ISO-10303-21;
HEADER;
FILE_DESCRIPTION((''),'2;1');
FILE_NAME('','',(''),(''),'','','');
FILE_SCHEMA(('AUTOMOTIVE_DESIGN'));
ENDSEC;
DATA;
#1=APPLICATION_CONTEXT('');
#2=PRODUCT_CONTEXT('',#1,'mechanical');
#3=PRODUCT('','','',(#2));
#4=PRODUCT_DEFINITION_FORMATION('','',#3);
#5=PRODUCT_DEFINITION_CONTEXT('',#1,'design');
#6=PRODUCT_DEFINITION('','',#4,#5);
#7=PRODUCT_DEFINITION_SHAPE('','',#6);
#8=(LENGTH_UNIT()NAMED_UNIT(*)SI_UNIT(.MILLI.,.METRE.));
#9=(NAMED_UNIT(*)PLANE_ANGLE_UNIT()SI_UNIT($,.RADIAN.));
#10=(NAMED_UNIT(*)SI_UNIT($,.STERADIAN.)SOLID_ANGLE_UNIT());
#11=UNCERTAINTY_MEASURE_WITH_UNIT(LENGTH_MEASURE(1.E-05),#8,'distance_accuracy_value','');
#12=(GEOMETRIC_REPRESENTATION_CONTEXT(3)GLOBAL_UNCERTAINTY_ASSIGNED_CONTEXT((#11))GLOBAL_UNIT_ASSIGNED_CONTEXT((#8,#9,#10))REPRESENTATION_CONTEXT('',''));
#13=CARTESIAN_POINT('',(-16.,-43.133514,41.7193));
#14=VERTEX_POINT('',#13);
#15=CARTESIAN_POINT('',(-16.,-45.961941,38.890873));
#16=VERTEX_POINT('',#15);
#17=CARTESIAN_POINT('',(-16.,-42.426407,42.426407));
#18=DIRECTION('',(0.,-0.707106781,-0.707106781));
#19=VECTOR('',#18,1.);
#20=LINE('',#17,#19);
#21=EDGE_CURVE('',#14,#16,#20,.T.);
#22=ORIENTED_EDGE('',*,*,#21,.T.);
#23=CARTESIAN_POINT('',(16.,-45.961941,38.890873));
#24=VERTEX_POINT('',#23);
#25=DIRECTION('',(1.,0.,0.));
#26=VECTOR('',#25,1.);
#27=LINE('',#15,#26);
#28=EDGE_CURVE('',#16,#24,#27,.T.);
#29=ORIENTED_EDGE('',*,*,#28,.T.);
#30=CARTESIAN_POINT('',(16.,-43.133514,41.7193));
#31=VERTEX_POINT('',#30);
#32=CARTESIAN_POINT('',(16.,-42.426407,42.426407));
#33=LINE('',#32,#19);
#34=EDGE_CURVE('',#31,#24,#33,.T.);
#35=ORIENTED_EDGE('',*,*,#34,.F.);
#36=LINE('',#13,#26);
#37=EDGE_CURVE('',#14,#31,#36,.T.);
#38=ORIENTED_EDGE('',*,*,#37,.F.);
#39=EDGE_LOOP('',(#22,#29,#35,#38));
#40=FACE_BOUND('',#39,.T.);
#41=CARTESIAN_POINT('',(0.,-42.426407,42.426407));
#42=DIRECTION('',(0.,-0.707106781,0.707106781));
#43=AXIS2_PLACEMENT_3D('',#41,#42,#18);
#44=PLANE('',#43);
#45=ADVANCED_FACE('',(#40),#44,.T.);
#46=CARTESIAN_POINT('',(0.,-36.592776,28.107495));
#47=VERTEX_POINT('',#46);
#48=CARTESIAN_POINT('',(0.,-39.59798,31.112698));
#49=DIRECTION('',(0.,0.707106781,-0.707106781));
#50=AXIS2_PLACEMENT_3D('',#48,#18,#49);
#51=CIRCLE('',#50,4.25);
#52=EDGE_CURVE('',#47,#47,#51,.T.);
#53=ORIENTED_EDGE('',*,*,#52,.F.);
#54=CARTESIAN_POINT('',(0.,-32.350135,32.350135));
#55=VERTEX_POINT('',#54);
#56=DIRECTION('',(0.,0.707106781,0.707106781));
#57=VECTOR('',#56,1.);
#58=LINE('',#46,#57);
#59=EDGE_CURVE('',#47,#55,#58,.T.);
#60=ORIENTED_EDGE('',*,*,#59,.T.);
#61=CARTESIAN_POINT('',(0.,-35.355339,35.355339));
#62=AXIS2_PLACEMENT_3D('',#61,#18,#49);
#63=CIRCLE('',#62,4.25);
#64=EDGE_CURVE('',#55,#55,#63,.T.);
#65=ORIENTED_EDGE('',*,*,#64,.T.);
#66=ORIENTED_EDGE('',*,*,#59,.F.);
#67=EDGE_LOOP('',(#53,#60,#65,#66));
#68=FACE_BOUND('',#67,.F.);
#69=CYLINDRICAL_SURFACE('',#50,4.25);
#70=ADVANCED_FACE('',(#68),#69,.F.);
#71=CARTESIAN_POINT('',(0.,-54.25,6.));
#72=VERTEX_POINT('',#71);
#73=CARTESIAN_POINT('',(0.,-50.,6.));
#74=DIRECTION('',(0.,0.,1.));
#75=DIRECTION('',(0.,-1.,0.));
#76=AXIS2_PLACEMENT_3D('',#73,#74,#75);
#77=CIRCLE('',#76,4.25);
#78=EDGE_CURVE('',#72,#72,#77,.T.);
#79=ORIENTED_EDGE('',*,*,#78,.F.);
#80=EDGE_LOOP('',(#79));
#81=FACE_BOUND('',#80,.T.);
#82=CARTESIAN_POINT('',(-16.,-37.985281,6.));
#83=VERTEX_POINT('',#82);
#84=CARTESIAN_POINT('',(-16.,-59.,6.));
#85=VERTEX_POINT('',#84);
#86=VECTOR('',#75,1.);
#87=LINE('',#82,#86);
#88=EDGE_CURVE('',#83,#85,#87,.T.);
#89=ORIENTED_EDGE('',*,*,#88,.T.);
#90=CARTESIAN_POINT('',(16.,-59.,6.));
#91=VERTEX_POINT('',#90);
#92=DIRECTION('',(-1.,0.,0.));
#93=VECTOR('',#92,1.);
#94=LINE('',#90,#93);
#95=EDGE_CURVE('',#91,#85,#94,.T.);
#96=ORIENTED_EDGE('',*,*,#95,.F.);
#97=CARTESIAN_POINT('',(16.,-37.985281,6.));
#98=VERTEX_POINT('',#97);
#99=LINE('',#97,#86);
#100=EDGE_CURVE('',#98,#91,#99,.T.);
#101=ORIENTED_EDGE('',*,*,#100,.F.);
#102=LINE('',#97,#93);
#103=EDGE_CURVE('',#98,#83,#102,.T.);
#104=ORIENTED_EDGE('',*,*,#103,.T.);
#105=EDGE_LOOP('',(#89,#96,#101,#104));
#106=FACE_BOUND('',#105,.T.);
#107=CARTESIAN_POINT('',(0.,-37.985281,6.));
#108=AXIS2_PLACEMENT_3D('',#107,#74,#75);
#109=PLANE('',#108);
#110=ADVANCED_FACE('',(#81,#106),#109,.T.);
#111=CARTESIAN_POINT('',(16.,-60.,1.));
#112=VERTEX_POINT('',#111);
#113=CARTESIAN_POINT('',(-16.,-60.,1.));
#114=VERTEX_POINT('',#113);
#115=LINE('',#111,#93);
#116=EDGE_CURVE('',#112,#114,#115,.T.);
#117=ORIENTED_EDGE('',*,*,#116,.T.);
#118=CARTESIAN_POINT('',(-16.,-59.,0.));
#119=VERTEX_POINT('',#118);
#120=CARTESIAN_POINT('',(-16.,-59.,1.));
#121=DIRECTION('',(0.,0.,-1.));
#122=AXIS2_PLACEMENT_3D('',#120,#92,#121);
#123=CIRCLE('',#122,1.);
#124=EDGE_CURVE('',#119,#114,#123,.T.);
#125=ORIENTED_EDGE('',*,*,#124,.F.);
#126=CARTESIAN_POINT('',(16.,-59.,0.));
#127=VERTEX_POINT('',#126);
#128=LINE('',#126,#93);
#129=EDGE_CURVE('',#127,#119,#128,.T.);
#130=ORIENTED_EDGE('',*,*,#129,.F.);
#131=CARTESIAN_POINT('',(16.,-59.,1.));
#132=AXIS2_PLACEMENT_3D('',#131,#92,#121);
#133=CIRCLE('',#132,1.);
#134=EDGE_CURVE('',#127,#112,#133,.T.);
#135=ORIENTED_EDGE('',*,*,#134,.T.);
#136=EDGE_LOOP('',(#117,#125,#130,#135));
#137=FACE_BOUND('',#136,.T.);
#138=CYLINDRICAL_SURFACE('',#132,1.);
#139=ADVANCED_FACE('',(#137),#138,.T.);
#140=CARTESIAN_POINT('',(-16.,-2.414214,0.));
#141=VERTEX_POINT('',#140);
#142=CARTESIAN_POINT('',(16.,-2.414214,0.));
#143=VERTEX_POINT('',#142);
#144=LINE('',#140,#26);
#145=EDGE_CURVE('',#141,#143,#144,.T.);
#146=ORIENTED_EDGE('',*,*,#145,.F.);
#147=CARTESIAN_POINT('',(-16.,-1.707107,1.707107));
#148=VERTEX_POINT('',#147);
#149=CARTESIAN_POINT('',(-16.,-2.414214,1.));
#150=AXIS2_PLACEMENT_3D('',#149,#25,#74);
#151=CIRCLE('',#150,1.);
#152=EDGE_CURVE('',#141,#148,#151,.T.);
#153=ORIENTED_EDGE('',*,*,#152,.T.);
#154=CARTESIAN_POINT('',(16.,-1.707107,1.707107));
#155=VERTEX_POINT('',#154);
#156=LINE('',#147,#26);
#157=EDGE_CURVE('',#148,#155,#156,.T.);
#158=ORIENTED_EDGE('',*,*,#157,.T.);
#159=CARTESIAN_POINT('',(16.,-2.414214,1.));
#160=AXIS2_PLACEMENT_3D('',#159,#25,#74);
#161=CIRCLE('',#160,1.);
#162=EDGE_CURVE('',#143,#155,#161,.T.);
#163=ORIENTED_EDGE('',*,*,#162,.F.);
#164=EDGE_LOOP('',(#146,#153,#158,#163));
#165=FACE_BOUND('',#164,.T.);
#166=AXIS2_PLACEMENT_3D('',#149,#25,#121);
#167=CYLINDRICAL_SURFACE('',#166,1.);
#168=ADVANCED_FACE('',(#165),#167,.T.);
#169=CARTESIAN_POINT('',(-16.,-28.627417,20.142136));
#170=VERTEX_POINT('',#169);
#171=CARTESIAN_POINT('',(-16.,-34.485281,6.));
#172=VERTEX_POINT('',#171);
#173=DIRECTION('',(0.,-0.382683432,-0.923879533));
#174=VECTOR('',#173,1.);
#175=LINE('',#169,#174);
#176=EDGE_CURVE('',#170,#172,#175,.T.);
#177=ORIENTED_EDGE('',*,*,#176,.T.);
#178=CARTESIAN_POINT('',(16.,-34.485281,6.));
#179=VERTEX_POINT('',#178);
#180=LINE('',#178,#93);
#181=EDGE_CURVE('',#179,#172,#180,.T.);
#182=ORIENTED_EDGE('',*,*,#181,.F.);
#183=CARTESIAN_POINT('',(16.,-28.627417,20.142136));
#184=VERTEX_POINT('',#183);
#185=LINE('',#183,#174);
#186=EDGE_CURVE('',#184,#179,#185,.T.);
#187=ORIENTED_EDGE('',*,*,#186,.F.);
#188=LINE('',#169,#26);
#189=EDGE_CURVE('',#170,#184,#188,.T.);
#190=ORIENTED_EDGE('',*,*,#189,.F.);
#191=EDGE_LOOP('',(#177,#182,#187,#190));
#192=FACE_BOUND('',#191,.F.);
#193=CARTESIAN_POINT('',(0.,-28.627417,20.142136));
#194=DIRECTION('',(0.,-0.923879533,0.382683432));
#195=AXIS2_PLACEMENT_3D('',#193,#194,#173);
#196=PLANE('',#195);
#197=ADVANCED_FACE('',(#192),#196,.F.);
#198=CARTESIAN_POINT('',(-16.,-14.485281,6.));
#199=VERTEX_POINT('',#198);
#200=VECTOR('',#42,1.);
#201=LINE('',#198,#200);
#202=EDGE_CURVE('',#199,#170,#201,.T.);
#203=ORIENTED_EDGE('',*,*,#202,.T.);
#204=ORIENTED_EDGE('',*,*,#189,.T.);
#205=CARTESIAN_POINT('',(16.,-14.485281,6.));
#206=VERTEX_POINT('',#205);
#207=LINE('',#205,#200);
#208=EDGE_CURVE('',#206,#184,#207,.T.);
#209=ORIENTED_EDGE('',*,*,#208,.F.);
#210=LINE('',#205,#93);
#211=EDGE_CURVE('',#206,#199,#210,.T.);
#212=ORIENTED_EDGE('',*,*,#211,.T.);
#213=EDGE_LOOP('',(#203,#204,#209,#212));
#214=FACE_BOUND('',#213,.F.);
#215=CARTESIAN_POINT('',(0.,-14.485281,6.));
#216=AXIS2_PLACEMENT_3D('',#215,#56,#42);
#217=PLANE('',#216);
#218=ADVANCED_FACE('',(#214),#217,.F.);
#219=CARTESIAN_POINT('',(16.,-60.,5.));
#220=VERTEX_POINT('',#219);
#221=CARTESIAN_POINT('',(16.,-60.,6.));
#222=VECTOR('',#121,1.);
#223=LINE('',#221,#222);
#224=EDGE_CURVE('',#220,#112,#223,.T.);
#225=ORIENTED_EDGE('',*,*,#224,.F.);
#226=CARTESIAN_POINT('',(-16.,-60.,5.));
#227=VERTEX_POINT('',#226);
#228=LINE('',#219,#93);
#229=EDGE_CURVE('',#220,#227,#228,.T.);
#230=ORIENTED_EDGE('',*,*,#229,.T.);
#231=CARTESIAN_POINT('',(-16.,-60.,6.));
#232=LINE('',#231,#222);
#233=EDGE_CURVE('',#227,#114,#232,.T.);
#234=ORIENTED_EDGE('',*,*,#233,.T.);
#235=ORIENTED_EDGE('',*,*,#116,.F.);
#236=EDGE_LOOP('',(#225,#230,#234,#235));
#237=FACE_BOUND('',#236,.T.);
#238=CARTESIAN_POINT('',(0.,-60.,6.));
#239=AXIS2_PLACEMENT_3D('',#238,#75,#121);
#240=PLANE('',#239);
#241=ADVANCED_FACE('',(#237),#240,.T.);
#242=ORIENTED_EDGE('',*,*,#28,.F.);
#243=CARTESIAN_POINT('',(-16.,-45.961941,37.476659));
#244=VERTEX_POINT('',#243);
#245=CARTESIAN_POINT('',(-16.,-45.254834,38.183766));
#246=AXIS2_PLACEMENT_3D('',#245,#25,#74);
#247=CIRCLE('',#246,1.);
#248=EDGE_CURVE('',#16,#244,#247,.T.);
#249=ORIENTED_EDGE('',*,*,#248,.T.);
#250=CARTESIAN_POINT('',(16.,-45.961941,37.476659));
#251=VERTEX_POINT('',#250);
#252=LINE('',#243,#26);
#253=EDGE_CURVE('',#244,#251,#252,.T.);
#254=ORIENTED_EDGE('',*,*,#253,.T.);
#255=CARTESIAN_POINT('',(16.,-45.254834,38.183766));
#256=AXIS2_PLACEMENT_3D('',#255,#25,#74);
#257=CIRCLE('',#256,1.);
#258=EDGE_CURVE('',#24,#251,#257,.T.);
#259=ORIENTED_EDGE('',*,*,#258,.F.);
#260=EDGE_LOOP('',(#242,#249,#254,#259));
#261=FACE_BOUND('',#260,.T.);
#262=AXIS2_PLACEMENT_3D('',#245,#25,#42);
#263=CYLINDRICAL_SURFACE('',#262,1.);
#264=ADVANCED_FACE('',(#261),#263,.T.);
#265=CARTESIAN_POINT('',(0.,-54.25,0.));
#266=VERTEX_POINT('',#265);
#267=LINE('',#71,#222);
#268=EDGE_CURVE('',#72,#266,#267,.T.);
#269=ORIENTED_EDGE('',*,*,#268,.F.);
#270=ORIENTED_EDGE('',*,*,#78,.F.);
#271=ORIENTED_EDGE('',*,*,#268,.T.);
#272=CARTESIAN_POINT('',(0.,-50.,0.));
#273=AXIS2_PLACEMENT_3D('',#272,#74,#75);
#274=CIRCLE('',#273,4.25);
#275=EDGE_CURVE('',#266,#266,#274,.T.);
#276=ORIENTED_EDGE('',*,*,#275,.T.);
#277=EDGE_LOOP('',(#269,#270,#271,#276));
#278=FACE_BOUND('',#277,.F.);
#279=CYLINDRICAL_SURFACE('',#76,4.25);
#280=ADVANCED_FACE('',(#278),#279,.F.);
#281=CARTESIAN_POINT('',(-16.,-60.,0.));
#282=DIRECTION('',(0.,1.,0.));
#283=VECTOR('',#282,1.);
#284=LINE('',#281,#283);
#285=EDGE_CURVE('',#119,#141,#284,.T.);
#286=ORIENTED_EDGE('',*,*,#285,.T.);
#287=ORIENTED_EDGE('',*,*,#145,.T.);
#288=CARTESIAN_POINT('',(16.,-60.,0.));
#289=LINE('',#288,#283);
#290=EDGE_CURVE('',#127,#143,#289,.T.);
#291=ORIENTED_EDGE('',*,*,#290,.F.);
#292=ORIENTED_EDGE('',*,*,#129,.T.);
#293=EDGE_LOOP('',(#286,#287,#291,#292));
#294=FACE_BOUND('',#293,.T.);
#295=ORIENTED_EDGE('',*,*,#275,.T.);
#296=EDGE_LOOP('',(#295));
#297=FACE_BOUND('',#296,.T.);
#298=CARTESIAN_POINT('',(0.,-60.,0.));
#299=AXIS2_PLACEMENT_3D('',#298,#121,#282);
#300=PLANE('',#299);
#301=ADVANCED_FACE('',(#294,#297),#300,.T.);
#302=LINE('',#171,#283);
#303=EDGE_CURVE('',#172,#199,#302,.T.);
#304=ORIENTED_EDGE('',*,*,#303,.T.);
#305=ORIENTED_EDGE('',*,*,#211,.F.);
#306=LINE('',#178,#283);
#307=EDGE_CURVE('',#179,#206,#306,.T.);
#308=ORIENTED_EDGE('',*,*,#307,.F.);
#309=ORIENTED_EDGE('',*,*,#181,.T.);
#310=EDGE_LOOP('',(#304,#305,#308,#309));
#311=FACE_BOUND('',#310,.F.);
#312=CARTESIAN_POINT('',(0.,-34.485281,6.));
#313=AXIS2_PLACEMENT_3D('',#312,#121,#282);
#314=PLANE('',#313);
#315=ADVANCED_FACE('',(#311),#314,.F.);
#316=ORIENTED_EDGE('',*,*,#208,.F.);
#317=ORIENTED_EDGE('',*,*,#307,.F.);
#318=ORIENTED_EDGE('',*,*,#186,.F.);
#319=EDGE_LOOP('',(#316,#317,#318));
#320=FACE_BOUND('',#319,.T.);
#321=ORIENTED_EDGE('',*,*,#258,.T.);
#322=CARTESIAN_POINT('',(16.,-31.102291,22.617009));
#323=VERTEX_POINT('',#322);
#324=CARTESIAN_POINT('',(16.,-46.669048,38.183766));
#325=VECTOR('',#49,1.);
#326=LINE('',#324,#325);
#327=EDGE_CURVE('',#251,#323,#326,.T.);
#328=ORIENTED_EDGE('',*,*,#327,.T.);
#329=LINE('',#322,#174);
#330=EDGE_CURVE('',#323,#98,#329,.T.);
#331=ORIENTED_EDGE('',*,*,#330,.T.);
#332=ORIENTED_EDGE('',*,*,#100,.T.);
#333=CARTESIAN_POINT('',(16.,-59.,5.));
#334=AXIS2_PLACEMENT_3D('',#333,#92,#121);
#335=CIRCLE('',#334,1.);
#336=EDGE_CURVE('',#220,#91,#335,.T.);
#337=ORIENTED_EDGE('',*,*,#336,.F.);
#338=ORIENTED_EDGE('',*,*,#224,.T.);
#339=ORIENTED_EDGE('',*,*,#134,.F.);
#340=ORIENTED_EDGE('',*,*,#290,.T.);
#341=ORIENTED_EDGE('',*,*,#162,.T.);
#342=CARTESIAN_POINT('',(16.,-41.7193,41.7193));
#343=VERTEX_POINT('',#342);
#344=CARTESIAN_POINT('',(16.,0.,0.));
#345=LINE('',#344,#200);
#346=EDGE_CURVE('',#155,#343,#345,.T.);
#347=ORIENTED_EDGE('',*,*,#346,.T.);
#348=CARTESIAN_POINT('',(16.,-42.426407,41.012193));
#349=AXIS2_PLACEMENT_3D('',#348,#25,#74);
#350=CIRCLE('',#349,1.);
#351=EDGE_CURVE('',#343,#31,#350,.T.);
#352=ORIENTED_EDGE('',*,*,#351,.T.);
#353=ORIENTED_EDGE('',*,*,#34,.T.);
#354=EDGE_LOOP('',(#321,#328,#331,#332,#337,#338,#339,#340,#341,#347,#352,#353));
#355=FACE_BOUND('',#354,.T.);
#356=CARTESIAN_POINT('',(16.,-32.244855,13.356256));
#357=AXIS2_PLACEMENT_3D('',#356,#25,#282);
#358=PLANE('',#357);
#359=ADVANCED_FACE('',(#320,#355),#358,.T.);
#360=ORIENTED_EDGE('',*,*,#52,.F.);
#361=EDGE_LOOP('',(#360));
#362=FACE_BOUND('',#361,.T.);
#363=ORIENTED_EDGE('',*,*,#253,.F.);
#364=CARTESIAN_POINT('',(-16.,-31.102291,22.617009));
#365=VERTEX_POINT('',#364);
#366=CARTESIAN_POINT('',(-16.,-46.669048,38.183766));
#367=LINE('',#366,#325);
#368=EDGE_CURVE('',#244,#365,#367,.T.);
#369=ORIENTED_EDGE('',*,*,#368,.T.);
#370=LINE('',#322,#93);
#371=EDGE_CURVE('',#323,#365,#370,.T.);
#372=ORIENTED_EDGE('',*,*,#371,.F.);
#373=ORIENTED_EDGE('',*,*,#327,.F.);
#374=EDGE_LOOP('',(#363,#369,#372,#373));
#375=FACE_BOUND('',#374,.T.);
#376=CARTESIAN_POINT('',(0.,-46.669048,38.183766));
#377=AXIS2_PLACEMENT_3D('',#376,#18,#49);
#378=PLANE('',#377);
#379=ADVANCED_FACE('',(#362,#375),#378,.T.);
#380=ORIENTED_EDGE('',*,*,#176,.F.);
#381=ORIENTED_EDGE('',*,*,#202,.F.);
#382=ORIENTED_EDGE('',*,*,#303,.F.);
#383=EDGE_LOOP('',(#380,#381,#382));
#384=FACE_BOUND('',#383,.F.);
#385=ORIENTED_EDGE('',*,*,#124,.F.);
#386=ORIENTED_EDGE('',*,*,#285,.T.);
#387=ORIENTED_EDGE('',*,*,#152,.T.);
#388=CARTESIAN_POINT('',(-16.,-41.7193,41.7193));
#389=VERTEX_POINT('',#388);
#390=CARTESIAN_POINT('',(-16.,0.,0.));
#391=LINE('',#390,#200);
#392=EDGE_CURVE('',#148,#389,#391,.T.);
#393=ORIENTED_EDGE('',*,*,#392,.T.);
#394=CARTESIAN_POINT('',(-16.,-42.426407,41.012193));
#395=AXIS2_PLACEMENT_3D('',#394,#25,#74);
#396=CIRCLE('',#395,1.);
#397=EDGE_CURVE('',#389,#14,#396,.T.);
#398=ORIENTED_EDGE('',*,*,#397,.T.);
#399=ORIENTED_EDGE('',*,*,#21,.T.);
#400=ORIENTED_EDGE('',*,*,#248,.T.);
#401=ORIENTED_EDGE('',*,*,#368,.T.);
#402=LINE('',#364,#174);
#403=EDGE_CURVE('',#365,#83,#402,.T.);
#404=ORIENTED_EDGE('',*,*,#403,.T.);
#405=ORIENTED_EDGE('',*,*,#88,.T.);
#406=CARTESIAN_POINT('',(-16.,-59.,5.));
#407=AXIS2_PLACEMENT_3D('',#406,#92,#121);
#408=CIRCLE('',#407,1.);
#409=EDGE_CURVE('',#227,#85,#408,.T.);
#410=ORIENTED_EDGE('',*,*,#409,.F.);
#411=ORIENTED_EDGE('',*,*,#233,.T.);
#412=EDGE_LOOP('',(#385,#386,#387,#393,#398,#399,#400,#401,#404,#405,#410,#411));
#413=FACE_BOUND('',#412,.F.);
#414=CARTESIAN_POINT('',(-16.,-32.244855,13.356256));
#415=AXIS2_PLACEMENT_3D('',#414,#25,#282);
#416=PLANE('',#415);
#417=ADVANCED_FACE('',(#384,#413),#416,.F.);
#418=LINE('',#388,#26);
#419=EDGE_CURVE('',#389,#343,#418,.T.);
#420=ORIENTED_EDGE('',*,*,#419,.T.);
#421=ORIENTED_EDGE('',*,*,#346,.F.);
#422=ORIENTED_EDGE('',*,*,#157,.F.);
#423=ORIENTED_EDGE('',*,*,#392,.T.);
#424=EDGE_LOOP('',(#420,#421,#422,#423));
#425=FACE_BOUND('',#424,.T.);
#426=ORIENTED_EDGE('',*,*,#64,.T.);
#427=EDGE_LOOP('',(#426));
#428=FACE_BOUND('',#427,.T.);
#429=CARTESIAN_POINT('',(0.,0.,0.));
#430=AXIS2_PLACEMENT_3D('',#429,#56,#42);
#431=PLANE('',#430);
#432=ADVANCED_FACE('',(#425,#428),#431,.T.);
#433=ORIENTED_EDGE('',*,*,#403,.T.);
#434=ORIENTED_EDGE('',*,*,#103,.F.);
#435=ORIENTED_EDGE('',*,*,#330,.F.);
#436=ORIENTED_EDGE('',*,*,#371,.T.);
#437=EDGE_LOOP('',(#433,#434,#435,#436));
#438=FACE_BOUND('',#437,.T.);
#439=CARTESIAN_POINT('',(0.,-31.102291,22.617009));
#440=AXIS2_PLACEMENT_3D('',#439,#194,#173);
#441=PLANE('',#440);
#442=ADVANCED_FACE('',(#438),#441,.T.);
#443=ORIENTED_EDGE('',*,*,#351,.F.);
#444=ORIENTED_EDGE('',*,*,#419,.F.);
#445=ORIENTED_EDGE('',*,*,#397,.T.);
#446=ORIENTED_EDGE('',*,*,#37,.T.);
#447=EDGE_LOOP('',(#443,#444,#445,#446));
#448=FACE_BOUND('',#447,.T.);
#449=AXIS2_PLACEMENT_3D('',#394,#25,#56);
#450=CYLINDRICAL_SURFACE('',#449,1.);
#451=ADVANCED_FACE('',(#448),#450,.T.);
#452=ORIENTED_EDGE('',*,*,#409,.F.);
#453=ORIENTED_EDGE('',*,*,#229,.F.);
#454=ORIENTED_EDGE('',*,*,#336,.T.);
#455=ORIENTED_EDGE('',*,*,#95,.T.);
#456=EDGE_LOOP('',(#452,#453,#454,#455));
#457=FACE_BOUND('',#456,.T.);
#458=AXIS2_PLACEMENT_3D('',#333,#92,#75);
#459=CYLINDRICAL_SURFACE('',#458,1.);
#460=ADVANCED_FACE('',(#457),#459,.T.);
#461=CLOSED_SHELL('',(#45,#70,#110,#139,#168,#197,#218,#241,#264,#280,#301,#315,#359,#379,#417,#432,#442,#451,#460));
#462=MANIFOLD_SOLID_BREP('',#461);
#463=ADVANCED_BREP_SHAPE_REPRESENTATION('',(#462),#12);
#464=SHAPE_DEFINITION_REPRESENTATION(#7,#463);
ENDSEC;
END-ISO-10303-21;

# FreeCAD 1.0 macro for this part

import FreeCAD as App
import Part
import Sketcher

V = App.Vector
Q = App.Units.Quantity


def edges_at(feature, points):
    """Names of the edges that pass closest to the given points."""
    edges = feature.Shape.Edges
    near = lambda p: min(range(len(edges)), key=lambda i: edges[i].distToShape(Part.Vertex(*p))[0])
    return sorted({f"Edge{near(p) + 1}" for p in points})


def add_polygon(sketch, points):
    """Adds a closed chain of lines whose ends are joined by coincident constraints."""
    first, n = sketch.GeometryCount, len(points)
    for a, b in zip(points, points[1:] + points[:1]):
        sketch.addGeometry(Part.LineSegment(App.Vector(*a, 0), App.Vector(*b, 0)), False)
    for i in range(n):
        sketch.addConstraint(Sketcher.Constraint("Coincident", first + i, 2, first + (i + 1) % n, 1))

doc = App.newDocument("Part")
params = doc.addObject("Spreadsheet::Sheet", "Params")
for row, (alias, value) in enumerate([
    ("sketch1_width", "60 mm"),
    ("sketch1_width2", "20 mm"),
    ("sketch1_height", "6 mm"),
    ("sketch1_length", "60 mm"),
    ("sketch1_length2", "6 mm"),
    ("pad1_length", "32 mm"),
    ("sketch2_diameter", "8.5 mm"),
    ("pocket1_length", "6 mm"),
    ("sketch3_diameter", "8.5 mm"),
    ("pocket2_length", "6 mm"),
    ("fillet_radius", "1 mm"),
], start=1):
    params.set(f"A{row}", alias)
    params.set(f"B{row}", "=" + value)
    params.setAlias(f"B{row}", alias)

body = doc.addObject("PartDesign::Body", "Body")

# Sketch on YZ plane
sketch1 = body.newObject("Sketcher::SketchObject", "Sketch")
sketch1.AttachmentSupport = (doc.getObject("YZ_Plane"), [""])
sketch1.MapMode = "FlatFace"
add_polygon(sketch1, [(-60, 0), (0, 0), (-42, 42), (-47, 38), (-31, 23), (-38, 6), (-60, 6)])  # lines 0-6
add_polygon(sketch1, [(-34, 6), (-29, 20), (-14, 6)])  # lines 7-9
sketch1.addConstraint(Sketcher.Constraint("Horizontal", 0))
sketch1.addConstraint(Sketcher.Constraint("Horizontal", 5))
sketch1.addConstraint(Sketcher.Constraint("Vertical", 6))
sketch1.addConstraint(Sketcher.Constraint("Horizontal", 9))
sketch1.addConstraint(Sketcher.Constraint("Coincident", 0, 2, -1, 1))
sketch1.addConstraint(Sketcher.Constraint("Perpendicular", 1, 2))
sketch1.addConstraint(Sketcher.Constraint("Perpendicular", 2, 3))
sketch1.addConstraint(Sketcher.Constraint("Parallel", 4, 7))
sketch1.addConstraint(Sketcher.Constraint("Parallel", 3, 8))
sketch1.addConstraint(Sketcher.Constraint("Horizontal", 5, 2, 8, 2))
sketch1.addConstraint(Sketcher.Constraint("DistanceX", 0, 1, 0, 2, 60.0))
sketch1.addConstraint(Sketcher.Constraint("DistanceX", 9, 2, 9, 1, 20.0))
sketch1.addConstraint(Sketcher.Constraint("DistanceY", 6, 2, 6, 1, 6.0))
sketch1.addConstraint(Sketcher.Constraint("Angle", 1, Q("135 deg")))
sketch1.addConstraint(Sketcher.Constraint("Distance", 1, 60.0))
sketch1.addConstraint(Sketcher.Constraint("Distance", 2, 6.0))
sketch1.addConstraint(Sketcher.Constraint("Distance", 8, 20.0))
sketch1.addConstraint(Sketcher.Constraint("DistanceX", 4, 2, 8, 2, 23.5))
sketch1.addConstraint(Sketcher.Constraint("DistanceX", 5, 2, 5, 1, 22.014719))
sketch1.setExpression("Constraints[20]", "Params.sketch1_width")
sketch1.setExpression("Constraints[21]", "Params.sketch1_width2")
sketch1.setExpression("Constraints[22]", "Params.sketch1_height")
sketch1.setExpression("Constraints[24]", "Params.sketch1_length")
sketch1.setExpression("Constraints[25]", "Params.sketch1_length2")
pad1 = body.newObject("PartDesign::Pad", "Pad")
pad1.Profile = sketch1
pad1.setExpression("Length", "Params.pad1_length")
pad1.Midplane = True

# Sketch on XY plane
sketch2 = body.newObject("Sketcher::SketchObject", "Sketch001")
sketch2.AttachmentSupport = (doc.getObject("XY_Plane"), [""])
sketch2.MapMode = "FlatFace"
sketch2.AttachmentOffset = App.Placement(V(0, 0, 6), App.Rotation())
sketch2.addGeometry(Part.Circle(V(0, -50, 0), V(0, 0, 1), 4.2), False)
sketch2.addConstraint(Sketcher.Constraint("PointOnObject", 0, 3, -2))
sketch2.addConstraint(Sketcher.Constraint("Diameter", 0, 8.5))
sketch2.addConstraint(Sketcher.Constraint("DistanceY", 0, 3, -1, 1, 50.0))
sketch2.setExpression("Constraints[1]", "Params.sketch2_diameter")
pocket1 = body.newObject("PartDesign::Pocket", "Pocket")
pocket1.Profile = sketch2
pocket1.setExpression("Length", "Params.pocket1_length")

# Sketch on an angled plane
sketch3 = body.newObject("Sketcher::SketchObject", "Sketch002")
sketch3.Placement = App.Placement(V(0, -4.242641, -4.242641), App.Rotation(V(0, 0.707106781, -0.707106781), V(0.999999999, 0, 0), V(0, -0.707106781, -0.707106781), "ZXY"))
sketch3.addGeometry(Part.Circle(V(-50, 0, 0), V(0, 0, 1), 4.2), False)
sketch3.addConstraint(Sketcher.Constraint("PointOnObject", 0, 3, -1))
sketch3.addConstraint(Sketcher.Constraint("Diameter", 0, 8.5))
sketch3.addConstraint(Sketcher.Constraint("DistanceX", 0, 3, -1, 1, 50.0))
sketch3.setExpression("Constraints[1]", "Params.sketch3_diameter")
pocket2 = body.newObject("PartDesign::Pocket", "Pocket001")
pocket2.Profile = sketch3
pocket2.setExpression("Length", "Params.pocket2_length")
doc.recompute()

fillet = body.newObject("PartDesign::Fillet", "Fillet")
fillet.Base = (pocket2, edges_at(pocket2, [
    (0, 0, 0),
    (0, -60, 0),
    (0, -60, 6),
    (0, -46.669, 38.184),
    (0, -42.426, 42.426),
]))
fillet.setExpression("Radius", "Params.fillet_radius")

doc.recompute()
